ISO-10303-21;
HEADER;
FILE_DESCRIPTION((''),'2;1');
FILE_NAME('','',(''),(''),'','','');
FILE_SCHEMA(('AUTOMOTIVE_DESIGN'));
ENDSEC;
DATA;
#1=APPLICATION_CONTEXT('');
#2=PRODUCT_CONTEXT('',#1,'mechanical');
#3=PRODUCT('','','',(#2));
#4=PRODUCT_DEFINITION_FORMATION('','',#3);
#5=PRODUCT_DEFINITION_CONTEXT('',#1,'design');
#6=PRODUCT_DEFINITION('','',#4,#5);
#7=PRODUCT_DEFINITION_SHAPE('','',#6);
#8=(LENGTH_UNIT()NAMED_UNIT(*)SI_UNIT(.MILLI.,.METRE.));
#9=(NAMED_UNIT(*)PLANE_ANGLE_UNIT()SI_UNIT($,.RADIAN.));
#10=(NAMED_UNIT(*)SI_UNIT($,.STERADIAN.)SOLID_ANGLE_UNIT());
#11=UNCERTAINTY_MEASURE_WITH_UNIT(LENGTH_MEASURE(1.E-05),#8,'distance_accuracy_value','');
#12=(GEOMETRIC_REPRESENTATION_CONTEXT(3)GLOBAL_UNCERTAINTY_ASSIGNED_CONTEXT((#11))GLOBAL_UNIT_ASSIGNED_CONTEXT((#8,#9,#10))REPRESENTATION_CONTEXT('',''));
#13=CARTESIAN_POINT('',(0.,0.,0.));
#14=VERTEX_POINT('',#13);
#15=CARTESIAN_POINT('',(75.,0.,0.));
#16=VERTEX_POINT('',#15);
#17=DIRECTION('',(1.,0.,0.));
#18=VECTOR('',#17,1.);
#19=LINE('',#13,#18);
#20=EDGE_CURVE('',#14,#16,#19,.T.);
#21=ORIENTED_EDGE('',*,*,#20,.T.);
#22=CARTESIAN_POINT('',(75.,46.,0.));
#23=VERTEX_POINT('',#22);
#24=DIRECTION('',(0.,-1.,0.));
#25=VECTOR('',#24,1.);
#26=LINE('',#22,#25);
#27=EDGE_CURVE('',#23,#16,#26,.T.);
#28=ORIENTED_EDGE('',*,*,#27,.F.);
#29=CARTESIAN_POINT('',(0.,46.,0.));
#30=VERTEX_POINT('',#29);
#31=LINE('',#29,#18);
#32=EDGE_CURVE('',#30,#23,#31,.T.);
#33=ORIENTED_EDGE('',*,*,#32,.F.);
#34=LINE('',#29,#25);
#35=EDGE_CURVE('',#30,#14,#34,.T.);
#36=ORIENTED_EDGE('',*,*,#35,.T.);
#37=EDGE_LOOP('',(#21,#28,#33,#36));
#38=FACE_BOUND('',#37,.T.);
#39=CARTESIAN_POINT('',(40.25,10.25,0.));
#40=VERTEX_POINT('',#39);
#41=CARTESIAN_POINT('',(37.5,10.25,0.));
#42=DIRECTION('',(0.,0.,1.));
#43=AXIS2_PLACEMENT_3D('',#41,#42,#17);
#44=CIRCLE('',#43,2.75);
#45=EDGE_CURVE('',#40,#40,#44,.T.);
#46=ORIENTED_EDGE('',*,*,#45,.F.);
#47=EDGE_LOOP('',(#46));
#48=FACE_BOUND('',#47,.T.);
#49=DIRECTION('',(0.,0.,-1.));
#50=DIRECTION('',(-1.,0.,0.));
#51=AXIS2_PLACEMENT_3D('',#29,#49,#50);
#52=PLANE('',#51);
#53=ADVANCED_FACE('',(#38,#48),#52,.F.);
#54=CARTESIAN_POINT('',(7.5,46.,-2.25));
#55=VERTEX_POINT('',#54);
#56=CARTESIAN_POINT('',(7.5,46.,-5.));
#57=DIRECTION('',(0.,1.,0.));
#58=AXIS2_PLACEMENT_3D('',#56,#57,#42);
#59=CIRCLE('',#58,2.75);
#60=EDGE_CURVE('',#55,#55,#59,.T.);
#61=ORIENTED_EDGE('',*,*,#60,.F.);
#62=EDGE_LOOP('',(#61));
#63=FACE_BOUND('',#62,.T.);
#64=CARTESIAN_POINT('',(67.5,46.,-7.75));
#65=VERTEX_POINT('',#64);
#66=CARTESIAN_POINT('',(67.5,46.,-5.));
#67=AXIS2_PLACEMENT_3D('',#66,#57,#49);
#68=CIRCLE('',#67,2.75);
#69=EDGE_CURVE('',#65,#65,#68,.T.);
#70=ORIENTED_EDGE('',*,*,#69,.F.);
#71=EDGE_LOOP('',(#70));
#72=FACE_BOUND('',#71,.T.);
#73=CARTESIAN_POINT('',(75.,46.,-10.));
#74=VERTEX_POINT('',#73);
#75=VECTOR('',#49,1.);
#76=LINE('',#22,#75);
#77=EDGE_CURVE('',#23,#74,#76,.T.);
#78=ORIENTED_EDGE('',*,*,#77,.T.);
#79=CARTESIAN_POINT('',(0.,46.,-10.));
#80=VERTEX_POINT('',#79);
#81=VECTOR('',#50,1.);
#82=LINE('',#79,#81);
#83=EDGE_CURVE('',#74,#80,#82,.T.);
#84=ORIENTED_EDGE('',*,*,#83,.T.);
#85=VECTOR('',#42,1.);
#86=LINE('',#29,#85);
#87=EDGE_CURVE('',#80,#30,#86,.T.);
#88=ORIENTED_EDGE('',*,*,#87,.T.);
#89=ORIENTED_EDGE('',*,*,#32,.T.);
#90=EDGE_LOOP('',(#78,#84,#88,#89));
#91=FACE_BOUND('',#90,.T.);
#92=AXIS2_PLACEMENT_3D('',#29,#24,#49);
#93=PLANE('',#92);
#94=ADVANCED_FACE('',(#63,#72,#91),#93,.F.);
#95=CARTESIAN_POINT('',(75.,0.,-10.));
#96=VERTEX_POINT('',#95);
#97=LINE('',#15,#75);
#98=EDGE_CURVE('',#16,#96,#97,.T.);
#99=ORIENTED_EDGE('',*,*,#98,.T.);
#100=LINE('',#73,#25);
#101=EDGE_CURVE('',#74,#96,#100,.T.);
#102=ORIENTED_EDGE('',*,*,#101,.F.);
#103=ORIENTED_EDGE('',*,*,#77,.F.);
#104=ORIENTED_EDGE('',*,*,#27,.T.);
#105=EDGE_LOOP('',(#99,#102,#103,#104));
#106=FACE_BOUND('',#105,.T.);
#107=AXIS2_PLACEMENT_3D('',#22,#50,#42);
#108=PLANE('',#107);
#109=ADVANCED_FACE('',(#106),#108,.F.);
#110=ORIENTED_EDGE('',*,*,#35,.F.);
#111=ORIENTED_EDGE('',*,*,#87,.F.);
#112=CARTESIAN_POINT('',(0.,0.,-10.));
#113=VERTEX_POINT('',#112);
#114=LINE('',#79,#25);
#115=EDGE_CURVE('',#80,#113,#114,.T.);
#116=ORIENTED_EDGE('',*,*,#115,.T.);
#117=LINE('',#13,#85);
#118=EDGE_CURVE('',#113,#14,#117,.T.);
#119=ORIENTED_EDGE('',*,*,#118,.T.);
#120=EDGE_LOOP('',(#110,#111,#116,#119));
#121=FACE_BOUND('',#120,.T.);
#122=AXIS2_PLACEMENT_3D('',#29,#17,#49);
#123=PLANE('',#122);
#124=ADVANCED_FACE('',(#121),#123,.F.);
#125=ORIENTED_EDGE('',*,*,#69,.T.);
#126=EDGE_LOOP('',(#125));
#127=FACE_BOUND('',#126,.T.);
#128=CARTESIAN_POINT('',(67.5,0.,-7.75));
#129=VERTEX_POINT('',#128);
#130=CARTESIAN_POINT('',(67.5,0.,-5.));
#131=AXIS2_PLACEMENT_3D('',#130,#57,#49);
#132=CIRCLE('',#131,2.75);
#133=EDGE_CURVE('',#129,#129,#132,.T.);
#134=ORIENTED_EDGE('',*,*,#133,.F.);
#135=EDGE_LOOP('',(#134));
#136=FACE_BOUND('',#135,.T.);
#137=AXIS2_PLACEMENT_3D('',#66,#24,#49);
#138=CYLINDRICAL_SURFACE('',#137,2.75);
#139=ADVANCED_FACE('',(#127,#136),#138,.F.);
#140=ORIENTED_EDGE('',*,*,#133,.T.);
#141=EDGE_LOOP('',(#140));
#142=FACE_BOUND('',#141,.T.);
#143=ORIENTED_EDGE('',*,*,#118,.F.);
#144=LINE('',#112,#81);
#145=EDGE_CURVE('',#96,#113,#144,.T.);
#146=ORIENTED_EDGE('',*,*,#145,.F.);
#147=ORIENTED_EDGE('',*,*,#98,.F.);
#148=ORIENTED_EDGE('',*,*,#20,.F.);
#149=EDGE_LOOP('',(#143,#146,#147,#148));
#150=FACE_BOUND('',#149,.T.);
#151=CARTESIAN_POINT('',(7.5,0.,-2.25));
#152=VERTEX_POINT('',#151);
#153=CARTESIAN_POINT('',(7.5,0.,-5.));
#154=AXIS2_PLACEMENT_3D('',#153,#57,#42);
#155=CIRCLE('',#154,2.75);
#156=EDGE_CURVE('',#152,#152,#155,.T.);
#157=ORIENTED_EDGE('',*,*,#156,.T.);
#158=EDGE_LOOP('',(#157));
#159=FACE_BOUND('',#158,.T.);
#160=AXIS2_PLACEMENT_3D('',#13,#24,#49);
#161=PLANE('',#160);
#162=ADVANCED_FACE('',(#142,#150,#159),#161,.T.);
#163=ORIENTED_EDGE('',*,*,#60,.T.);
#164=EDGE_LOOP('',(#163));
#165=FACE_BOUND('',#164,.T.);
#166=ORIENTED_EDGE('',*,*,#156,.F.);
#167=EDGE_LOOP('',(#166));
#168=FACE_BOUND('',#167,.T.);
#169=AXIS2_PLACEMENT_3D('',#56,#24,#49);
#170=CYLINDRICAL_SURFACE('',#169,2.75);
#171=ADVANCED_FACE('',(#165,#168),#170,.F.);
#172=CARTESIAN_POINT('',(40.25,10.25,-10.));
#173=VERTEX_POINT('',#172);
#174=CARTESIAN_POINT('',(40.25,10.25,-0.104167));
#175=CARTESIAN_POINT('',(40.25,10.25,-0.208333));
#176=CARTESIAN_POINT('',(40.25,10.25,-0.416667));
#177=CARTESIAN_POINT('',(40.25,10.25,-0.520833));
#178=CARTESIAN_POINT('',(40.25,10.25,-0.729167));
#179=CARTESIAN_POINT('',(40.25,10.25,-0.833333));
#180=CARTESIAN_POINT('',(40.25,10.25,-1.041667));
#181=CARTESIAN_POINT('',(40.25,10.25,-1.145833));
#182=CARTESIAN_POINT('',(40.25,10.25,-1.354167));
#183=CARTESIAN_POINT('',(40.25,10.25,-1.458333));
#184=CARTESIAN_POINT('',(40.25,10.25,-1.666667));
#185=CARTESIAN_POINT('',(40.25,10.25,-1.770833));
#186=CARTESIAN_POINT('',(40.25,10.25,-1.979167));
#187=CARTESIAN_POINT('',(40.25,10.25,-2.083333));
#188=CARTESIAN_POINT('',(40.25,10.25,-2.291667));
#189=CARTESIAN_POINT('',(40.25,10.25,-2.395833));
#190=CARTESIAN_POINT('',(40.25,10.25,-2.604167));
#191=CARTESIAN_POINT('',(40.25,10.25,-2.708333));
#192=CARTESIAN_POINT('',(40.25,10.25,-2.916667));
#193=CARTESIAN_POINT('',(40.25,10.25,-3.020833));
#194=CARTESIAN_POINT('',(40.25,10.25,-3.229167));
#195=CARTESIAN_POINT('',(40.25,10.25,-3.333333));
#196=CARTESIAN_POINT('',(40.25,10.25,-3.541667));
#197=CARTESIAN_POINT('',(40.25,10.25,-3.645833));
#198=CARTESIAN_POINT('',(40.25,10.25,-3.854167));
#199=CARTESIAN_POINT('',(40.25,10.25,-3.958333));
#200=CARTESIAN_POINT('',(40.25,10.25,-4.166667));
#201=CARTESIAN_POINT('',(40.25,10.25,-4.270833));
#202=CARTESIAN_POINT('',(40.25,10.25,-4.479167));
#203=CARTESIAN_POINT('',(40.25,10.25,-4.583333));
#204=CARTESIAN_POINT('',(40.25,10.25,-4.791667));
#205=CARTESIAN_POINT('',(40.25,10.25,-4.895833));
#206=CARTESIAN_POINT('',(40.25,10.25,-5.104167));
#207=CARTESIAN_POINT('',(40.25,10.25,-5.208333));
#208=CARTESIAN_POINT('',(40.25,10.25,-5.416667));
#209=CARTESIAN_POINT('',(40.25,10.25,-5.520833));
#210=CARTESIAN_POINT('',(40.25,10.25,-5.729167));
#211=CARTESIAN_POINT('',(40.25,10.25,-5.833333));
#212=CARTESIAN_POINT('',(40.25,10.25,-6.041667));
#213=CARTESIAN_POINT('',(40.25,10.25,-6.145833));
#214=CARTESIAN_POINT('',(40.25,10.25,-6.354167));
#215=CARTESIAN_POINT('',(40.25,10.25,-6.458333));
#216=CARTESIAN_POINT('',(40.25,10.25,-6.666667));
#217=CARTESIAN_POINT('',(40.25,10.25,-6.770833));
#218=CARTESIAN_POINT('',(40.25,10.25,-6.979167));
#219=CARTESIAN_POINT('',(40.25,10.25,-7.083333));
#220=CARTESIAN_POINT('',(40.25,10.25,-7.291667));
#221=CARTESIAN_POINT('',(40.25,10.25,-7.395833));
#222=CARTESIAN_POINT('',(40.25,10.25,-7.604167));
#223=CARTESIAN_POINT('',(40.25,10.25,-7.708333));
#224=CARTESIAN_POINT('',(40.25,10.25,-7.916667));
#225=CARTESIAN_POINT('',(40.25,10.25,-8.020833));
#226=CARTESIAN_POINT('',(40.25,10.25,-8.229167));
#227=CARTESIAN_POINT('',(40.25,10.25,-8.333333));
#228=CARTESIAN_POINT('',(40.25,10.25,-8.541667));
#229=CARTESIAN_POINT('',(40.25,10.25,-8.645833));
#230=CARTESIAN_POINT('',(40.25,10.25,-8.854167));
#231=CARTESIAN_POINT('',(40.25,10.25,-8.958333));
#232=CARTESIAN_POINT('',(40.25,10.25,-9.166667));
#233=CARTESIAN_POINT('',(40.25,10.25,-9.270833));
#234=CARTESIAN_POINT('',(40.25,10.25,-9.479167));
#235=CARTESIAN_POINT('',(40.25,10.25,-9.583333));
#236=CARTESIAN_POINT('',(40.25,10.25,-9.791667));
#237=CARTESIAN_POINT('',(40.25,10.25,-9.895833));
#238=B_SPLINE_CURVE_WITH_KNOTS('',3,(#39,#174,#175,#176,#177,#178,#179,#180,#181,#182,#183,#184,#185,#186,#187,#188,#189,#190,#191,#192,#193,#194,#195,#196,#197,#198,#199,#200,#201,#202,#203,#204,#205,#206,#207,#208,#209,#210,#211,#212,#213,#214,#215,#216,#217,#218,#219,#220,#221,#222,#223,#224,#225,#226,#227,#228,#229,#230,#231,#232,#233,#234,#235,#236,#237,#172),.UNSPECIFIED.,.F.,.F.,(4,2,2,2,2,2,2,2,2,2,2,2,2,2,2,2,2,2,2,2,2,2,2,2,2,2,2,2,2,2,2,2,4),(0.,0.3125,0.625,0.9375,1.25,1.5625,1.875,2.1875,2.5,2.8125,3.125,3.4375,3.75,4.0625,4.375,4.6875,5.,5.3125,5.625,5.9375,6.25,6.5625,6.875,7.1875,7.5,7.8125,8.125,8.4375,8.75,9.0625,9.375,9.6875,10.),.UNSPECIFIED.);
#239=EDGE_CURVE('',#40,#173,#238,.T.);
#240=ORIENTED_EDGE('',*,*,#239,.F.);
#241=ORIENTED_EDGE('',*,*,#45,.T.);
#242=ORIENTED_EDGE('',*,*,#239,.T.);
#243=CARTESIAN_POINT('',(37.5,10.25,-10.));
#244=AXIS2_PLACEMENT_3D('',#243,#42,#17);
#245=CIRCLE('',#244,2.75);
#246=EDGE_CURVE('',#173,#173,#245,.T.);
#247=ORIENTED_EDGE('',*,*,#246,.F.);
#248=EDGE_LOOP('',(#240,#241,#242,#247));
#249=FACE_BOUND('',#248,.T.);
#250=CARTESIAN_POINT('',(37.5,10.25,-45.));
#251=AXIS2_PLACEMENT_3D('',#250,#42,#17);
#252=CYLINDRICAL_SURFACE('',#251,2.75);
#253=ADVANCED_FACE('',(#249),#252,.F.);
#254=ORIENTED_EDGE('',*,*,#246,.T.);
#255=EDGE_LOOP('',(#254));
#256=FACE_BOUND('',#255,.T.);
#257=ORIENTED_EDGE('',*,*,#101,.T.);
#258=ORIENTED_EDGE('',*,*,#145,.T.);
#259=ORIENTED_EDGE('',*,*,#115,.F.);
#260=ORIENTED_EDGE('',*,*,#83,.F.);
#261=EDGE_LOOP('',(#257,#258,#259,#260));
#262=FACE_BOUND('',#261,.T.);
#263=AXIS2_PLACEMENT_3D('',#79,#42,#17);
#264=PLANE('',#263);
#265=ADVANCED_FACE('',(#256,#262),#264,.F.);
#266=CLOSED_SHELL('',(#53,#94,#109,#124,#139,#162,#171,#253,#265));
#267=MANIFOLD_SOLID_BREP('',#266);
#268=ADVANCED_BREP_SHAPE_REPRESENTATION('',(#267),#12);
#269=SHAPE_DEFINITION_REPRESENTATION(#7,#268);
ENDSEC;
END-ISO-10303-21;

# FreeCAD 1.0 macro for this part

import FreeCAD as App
import Part
import Sketcher
from FreeCAD import Vector

doc = App.newDocument("Part")
body = doc.addObject("PartDesign::Body", "Body")

sketch1 = body.newObject("Sketcher::SketchObject", "Sketch")
sketch1.AttachmentSupport = (doc.getObject("XZ_Plane"), [""])
sketch1.MapMode = "FlatFace"
sketch1.addGeometry([
    Part.LineSegment(Vector(0, -10, 0), Vector(0, 0, 0)),
    Part.LineSegment(Vector(0, 0, 0), Vector(75, 0, 0)),
    Part.LineSegment(Vector(75, 0, 0), Vector(75, -10, 0)),
    Part.LineSegment(Vector(75, -10, 0), Vector(0, -10, 0)),
    Part.Circle(Vector(7.5, -5, 0), Vector(0, 0, 1), 2.8),
    Part.Circle(Vector(67.5, -5, 0), Vector(0, 0, 1), 2.8),
], False)
sketch1.addConstraint([
    Sketcher.Constraint("Coincident", 0, 2, 1, 1),
    Sketcher.Constraint("Coincident", 1, 2, 2, 1),
    Sketcher.Constraint("Coincident", 2, 2, 3, 1),
    Sketcher.Constraint("Coincident", 3, 2, 0, 1),
    Sketcher.Constraint("Vertical", 0),
    Sketcher.Constraint("Horizontal", 1),
    Sketcher.Constraint("Vertical", 2),
    Sketcher.Constraint("Horizontal", 3),
    Sketcher.Constraint("Coincident", 0, 2, -1, 1),
    Sketcher.Constraint("Equal", 4, 5),
    Sketcher.Constraint("Horizontal", 4, 3, 5, 3),
    Sketcher.Constraint("Diameter", 4, 5.5),
    Sketcher.Constraint("DistanceX", 1, 1, 1, 2, 75.0),
    Sketcher.Constraint("DistanceY", 0, 1, 0, 2, 10.0),
    Sketcher.Constraint("DistanceY", 4, 3, -1, 1, 5.0),
    Sketcher.Constraint("DistanceX", 4, 3, 5, 3, 60.0),
    Sketcher.Constraint("DistanceX", -1, 1, 4, 3, 7.5),
])
pad1 = body.newObject("PartDesign::Pad", "Pad")
pad1.Profile = sketch1
pad1.Length = 46
pad1.Reversed = True

sketch2 = body.newObject("Sketcher::SketchObject", "Sketch001")
sketch2.AttachmentSupport = (doc.getObject("XY_Plane"), [""])
sketch2.MapMode = "FlatFace"
sketch2.addGeometry(Part.Circle(Vector(37.5, 10.2, 0), Vector(0, 0, 1), 2.8), False)
sketch2.addConstraint([
    Sketcher.Constraint("Diameter", 0, 5.5),
    Sketcher.Constraint("DistanceX", -1, 1, 0, 3, 37.5),
    Sketcher.Constraint("DistanceY", -1, 1, 0, 3, 10.25),
])
pocket1 = body.newObject("PartDesign::Pocket", "Pocket")
pocket1.Profile = sketch2
pocket1.Length = 45

doc.recompute()
